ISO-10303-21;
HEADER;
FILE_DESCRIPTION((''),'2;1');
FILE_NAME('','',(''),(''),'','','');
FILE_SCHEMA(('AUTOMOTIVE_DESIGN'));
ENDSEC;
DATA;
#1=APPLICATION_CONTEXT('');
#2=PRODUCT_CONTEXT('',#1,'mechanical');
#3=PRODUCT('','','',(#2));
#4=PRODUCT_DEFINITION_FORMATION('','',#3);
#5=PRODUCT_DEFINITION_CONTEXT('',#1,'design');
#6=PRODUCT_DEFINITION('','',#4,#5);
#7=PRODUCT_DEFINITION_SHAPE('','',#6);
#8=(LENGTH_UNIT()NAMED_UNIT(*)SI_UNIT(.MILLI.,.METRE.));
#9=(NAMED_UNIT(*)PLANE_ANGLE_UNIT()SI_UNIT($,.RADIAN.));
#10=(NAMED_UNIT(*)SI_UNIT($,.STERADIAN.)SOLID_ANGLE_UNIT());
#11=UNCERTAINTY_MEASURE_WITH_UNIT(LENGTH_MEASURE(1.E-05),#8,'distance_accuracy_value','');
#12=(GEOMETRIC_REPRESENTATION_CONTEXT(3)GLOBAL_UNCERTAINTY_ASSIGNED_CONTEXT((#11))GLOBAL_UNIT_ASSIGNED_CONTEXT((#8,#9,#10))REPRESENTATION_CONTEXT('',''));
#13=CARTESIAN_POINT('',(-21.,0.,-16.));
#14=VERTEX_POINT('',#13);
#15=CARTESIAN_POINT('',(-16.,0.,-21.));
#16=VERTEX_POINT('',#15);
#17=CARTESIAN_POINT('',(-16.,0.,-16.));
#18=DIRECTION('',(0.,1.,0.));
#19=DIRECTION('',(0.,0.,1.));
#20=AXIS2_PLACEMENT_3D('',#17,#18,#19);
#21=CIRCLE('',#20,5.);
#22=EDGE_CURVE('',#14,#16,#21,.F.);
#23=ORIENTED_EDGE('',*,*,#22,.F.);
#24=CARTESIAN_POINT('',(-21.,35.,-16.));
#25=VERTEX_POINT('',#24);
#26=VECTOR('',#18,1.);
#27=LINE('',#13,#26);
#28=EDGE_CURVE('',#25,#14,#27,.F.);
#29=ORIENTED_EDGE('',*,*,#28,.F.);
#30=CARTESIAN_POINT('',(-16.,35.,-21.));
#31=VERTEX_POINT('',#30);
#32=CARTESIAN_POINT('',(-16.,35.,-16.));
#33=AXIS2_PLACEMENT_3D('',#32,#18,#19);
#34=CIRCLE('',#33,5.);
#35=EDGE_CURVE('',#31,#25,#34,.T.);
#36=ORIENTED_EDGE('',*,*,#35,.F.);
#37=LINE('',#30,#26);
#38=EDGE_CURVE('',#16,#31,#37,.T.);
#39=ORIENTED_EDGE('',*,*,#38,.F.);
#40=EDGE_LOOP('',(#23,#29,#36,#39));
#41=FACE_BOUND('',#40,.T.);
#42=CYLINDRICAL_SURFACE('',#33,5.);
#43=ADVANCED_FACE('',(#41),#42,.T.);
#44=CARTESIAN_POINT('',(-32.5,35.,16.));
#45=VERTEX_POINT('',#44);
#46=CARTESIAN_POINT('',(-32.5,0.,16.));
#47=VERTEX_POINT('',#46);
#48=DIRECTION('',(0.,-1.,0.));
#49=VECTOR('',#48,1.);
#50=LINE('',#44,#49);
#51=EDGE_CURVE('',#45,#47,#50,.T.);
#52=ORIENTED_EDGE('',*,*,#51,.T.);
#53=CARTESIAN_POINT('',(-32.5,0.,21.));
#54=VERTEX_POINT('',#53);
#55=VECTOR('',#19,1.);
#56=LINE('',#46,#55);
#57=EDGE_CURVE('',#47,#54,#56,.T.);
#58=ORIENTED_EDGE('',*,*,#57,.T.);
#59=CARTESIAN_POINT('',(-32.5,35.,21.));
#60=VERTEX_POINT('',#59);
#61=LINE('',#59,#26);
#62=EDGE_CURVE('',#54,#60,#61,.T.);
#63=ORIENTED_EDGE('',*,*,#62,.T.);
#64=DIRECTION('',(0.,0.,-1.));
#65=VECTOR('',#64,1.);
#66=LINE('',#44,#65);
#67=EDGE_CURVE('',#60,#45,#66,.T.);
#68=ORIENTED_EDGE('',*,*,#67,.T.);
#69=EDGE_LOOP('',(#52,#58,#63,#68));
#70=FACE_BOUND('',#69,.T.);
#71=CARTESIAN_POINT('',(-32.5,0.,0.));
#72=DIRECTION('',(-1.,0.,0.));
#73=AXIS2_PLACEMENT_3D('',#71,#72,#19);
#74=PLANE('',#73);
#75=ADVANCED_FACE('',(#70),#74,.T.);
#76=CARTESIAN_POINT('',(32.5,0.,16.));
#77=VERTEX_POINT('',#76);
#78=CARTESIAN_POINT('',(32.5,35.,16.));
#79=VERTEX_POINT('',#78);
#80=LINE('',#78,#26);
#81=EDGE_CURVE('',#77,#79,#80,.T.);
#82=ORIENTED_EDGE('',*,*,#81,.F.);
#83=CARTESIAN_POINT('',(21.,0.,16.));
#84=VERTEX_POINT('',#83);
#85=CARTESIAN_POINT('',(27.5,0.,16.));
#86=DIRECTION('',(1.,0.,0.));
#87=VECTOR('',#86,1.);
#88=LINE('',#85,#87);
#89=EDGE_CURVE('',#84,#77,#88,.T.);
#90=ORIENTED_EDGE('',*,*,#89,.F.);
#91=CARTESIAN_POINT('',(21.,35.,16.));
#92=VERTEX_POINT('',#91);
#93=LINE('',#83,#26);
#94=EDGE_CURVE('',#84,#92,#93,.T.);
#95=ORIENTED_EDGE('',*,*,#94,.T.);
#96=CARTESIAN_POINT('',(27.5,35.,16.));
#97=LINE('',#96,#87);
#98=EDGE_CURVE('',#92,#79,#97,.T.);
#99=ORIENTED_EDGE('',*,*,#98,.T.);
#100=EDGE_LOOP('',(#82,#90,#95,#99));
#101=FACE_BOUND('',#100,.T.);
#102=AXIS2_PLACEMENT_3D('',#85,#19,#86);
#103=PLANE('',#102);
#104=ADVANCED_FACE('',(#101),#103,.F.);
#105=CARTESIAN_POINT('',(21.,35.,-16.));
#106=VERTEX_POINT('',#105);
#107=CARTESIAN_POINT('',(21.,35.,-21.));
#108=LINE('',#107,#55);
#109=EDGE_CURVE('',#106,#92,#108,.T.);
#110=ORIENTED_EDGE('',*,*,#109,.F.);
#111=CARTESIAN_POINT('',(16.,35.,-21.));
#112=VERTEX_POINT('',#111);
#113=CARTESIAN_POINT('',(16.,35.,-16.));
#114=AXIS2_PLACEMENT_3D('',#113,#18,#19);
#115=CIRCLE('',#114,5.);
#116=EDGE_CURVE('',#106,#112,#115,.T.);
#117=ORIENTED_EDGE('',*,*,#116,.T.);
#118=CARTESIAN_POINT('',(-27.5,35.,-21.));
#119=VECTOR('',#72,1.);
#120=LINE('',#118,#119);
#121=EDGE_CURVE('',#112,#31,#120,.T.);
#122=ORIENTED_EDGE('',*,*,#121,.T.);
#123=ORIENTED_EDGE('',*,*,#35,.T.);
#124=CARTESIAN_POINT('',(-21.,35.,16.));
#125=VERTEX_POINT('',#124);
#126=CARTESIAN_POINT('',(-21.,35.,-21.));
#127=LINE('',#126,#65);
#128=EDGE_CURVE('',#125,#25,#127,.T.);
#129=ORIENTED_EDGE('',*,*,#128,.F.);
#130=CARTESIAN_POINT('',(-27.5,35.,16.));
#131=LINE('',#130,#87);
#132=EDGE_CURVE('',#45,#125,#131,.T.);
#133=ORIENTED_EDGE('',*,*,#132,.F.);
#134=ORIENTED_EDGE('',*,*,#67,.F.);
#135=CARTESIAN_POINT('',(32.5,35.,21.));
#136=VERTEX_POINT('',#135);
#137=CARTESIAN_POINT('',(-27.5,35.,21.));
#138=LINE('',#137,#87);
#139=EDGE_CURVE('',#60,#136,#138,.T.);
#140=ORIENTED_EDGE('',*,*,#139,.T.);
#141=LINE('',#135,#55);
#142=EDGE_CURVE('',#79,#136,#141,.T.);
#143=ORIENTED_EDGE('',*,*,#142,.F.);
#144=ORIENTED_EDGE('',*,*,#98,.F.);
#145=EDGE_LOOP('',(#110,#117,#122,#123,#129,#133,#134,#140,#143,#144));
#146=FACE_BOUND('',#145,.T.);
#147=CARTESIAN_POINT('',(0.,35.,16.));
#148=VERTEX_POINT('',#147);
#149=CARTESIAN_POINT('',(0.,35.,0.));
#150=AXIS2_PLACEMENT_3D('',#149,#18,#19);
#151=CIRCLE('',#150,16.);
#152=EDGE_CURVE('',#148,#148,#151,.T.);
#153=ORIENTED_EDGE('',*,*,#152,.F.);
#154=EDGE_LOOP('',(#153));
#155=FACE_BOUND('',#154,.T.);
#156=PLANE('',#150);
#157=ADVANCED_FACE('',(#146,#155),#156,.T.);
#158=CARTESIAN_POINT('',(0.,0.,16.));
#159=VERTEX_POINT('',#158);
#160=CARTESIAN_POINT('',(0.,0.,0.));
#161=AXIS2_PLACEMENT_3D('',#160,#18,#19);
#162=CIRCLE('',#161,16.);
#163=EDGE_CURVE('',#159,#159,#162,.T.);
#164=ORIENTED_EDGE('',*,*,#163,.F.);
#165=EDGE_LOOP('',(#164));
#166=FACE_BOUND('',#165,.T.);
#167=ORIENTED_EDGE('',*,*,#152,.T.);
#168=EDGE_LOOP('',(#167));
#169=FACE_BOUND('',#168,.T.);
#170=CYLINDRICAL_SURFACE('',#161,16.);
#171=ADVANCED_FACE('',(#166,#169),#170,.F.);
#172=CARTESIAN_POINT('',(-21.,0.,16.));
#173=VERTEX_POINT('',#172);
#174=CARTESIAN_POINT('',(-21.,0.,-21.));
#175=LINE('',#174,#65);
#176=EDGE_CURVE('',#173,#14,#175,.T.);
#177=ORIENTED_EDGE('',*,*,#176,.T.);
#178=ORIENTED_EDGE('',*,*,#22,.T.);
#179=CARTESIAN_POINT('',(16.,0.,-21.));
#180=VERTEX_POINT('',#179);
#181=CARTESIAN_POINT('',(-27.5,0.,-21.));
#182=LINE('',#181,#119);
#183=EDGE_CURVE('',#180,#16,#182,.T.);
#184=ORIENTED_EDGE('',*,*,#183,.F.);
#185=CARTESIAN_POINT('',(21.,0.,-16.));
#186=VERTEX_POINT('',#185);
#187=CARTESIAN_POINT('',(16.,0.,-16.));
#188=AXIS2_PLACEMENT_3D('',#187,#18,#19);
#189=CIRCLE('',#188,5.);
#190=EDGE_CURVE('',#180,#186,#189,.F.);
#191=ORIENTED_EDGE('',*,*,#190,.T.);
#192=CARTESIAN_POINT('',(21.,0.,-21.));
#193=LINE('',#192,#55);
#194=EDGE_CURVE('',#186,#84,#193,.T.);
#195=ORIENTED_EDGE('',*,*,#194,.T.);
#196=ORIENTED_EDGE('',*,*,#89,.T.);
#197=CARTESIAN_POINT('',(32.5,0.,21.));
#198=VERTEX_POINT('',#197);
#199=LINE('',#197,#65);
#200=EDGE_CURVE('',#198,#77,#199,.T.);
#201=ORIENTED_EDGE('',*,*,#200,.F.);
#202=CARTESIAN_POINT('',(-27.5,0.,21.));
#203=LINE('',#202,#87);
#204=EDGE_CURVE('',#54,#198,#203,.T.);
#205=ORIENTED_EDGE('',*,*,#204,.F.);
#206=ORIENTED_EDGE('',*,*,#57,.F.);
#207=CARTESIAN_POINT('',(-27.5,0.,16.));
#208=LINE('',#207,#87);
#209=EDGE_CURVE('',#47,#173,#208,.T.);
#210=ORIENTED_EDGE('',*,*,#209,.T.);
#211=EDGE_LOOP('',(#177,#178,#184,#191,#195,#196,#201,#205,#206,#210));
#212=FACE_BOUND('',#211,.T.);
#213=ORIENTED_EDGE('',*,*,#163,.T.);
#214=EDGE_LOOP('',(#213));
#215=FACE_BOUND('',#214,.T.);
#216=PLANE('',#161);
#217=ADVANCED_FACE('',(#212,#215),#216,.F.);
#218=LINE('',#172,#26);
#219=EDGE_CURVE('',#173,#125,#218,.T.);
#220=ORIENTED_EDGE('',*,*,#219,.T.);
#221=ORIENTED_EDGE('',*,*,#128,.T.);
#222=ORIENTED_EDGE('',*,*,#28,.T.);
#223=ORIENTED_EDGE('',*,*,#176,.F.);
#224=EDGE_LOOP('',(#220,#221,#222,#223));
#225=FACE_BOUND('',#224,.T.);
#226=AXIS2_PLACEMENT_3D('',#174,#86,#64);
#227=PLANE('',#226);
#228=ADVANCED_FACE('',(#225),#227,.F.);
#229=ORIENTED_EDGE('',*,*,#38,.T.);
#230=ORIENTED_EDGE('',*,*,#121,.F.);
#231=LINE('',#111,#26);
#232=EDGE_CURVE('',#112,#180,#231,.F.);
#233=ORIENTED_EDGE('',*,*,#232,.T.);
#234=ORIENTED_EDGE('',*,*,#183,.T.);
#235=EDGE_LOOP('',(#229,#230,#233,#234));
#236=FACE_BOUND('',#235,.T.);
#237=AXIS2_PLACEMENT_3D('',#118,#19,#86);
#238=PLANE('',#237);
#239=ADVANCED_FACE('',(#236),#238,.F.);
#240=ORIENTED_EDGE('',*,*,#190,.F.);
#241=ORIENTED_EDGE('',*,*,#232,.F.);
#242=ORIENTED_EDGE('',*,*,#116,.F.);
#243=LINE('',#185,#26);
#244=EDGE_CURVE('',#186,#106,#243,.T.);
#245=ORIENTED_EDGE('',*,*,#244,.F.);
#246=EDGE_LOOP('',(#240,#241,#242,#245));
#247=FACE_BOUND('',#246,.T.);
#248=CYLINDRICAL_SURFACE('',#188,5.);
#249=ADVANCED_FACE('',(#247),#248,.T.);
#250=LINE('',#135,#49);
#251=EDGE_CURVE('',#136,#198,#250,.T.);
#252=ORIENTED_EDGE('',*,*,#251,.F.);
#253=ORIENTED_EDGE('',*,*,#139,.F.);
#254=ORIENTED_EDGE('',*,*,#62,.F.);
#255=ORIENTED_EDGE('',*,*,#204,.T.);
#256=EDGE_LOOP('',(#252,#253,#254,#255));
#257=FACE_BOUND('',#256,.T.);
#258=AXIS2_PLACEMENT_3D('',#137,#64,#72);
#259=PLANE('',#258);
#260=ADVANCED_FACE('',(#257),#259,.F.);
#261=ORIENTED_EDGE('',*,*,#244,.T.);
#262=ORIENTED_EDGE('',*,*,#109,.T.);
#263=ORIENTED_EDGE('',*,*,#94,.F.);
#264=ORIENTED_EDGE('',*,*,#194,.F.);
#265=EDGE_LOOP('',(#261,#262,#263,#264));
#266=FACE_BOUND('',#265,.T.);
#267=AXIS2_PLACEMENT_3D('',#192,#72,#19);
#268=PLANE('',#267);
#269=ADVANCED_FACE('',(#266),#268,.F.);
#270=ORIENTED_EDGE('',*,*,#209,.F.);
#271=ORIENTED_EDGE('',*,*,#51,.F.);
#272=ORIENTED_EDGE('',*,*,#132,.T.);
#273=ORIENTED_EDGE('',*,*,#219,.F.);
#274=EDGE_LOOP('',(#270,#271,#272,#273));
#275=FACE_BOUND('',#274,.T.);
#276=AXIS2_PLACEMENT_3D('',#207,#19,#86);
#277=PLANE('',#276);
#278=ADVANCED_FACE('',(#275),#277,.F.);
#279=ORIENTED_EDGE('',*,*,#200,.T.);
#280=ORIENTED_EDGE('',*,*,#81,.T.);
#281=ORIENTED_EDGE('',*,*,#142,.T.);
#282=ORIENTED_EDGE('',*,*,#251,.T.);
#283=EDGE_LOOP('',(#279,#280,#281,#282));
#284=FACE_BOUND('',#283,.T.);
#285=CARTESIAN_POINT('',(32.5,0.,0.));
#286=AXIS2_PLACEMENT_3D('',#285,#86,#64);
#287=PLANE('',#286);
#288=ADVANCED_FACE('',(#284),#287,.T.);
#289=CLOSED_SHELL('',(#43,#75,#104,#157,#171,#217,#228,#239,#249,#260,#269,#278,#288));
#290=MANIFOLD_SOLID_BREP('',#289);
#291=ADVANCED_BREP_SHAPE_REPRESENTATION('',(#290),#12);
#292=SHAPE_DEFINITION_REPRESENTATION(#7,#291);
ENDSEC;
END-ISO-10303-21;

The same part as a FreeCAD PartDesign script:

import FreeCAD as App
import Part
import Sketcher
from FreeCAD import Vector
Q = App.Units.Quantity


def edges_at(feature, points):
    """Names of the edges that pass closest to the given points."""
    edges = feature.Shape.Edges
    near = lambda p: min(range(len(edges)), key=lambda i: edges[i].distToShape(Part.Vertex(*p))[0])
    return sorted({f"Edge{near(p) + 1}" for p in points})


def add_polygon(sketch, points):
    """Adds a closed chain of lines whose ends are joined by coincident constraints."""
    first, n = sketch.GeometryCount, len(points)
    for a, b in zip(points, points[1:] + points[:1]):
        sketch.addGeometry(Part.LineSegment(App.Vector(*a, 0), App.Vector(*b, 0)), False)
    for i in range(n):
        sketch.addConstraint(Sketcher.Constraint("Coincident", first + i, 2, first + (i + 1) % n, 1))

doc = App.newDocument("Part")
params = doc.addObject("Spreadsheet::Sheet", "Params")
for row, (alias, value) in enumerate([
    ("sketch1_width", "55 mm"),
    ("sketch1_height", "42 mm"),
    ("pad1_length", "35 mm"),
    ("sketch2_diameter", "32 mm"),
    ("pocket1_length", "35 mm"),
    ("sketch3_height", "37 mm"),
    ("sketch3_width", "6.5 mm"),
    ("pocket2_length", "35 mm"),
    ("fillet_radius", "5 mm"),
    ("sketch4_width", "35 mm"),
    ("sketch4_height", "5 mm"),
    ("pad2_length", "5 mm"),
    ("sketch5_width", "35 mm"),
    ("sketch5_height", "5 mm"),
    ("pad3_length", "5 mm"),
], start=1):
    params.set(f"A{row}", alias)
    params.set(f"B{row}", "=" + value)
    params.setAlias(f"B{row}", alias)

body = doc.addObject("PartDesign::Body", "Body")

# Sketch on XZ plane
sketch1 = body.newObject("Sketcher::SketchObject", "Sketch")
sketch1.AttachmentSupport = (doc.getObject("XZ_Plane"), [""])
sketch1.MapMode = "FlatFace"
add_polygon(sketch1, [(-28, -21), (-28, 21), (28, 21), (28, -21)])  # lines 0-3
sketch1.addConstraint(Sketcher.Constraint("Vertical", 0))
sketch1.addConstraint(Sketcher.Constraint("Horizontal", 1))
sketch1.addConstraint(Sketcher.Constraint("Vertical", 2))
sketch1.addConstraint(Sketcher.Constraint("Horizontal", 3))
sketch1.addConstraint(Sketcher.Constraint("Symmetric", 0, 2, 2, 2, -1, 1))
sketch1.addConstraint(Sketcher.Constraint("DistanceX", 1, 1, 1, 2, Q("55 mm")))
sketch1.addConstraint(Sketcher.Constraint("DistanceY", 0, 1, 0, 2, Q("42 mm")))
sketch1.setExpression("Constraints[9]", "Params.sketch1_width")
sketch1.setExpression("Constraints[10]", "Params.sketch1_height")
pad1 = body.newObject("PartDesign::Pad", "Pad")
pad1.Profile = sketch1
pad1.setExpression("Length", "Params.pad1_length")
pad1.Reversed = True

# Sketch on XZ plane
sketch2 = body.newObject("Sketcher::SketchObject", "Sketch001")
sketch2.AttachmentSupport = (doc.getObject("XZ_Plane"), [""])
sketch2.MapMode = "FlatFace"
sketch2.AttachmentOffset = App.Placement(Vector(0, 0, -35), App.Rotation())
sketch2.addGeometry(Part.Circle(Vector(0, 0, 0), Vector(0, 0, 1), 16), False)
sketch2.addConstraint(Sketcher.Constraint("Coincident", 0, 3, -1, 1))
sketch2.addConstraint(Sketcher.Constraint("Diameter", 0, Q("32 mm")))
sketch2.setExpression("Constraints[1]", "Params.sketch2_diameter")
pocket1 = body.newObject("PartDesign::Pocket", "Pocket")
pocket1.Profile = sketch2
pocket1.setExpression("Length", "Params.pocket1_length")
pocket1.Reversed = True

# Sketch on XZ plane
sketch3 = body.newObject("Sketcher::SketchObject", "Sketch002")
sketch3.AttachmentSupport = (doc.getObject("XZ_Plane"), [""])
sketch3.MapMode = "FlatFace"
sketch3.AttachmentOffset = App.Placement(Vector(0, 0, -35), App.Rotation())
add_polygon(sketch3, [(-28, -21), (-28, 16), (-21, 16), (-21, -21)])  # lines 0-3
add_polygon(sketch3, [(21, -21), (21, 16), (28, 16), (28, -21)])  # lines 4-7
sketch3.addConstraint(Sketcher.Constraint("Vertical", 0))
sketch3.addConstraint(Sketcher.Constraint("Horizontal", 1))
sketch3.addConstraint(Sketcher.Constraint("Vertical", 2))
sketch3.addConstraint(Sketcher.Constraint("Horizontal", 3))
sketch3.addConstraint(Sketcher.Constraint("Vertical", 4))
sketch3.addConstraint(Sketcher.Constraint("Horizontal", 5))
sketch3.addConstraint(Sketcher.Constraint("Vertical", 6))
sketch3.addConstraint(Sketcher.Constraint("Horizontal", 7))
sketch3.addConstraint(Sketcher.Constraint("Symmetric", 1, 2, 4, 2, -2))
sketch3.addConstraint(Sketcher.Constraint("Symmetric", 3, 2, 6, 2, -2))
sketch3.addConstraint(Sketcher.Constraint("DistanceY", 0, 1, 0, 2, Q("37 mm")))
sketch3.addConstraint(Sketcher.Constraint("DistanceX", 1, 1, 1, 2, Q("6.5 mm")))
sketch3.addConstraint(Sketcher.Constraint("DistanceY", -1, 1, 0, 2, Q("16 mm")))
sketch3.addConstraint(Sketcher.Constraint("DistanceX", 1, 2, -1, 1, Q("21 mm")))
sketch3.setExpression("Constraints[18]", "Params.sketch3_height")
sketch3.setExpression("Constraints[19]", "Params.sketch3_width")
pocket2 = body.newObject("PartDesign::Pocket", "Pocket001")
pocket2.Profile = sketch3
pocket2.setExpression("Length", "Params.pocket2_length")
pocket2.Reversed = True
doc.recompute()

fillet = body.newObject("PartDesign::Fillet", "Fillet")
fillet.Base = (pocket2, edges_at(pocket2, [(-21, 17.5, -21), (21, 17.5, -21)]))
fillet.setExpression("Radius", "Params.fillet_radius")

# Sketch on YZ plane
sketch4 = body.newObject("Sketcher::SketchObject", "Sketch003")
sketch4.AttachmentSupport = (doc.getObject("YZ_Plane"), [""])
sketch4.MapMode = "FlatFace"
sketch4.AttachmentOffset = App.Placement(Vector(0, 0, 27.5), App.Rotation())
add_polygon(sketch4, [(35, 21), (0, 21), (0, 16), (35, 16)])  # lines 0-3
sketch4.addConstraint(Sketcher.Constraint("Horizontal", 0))
sketch4.addConstraint(Sketcher.Constraint("Vertical", 1))
sketch4.addConstraint(Sketcher.Constraint("Horizontal", 2))
sketch4.addConstraint(Sketcher.Constraint("Vertical", 3))
sketch4.addConstraint(Sketcher.Constraint("PointOnObject", 0, 2, -2))
sketch4.addConstraint(Sketcher.Constraint("DistanceX", 0, 2, 0, 1, Q("35 mm")))
sketch4.addConstraint(Sketcher.Constraint("DistanceY", 1, 2, 1, 1, Q("5 mm")))
sketch4.addConstraint(Sketcher.Constraint("DistanceY", -1, 1, 0, 2, Q("21 mm")))
sketch4.setExpression("Constraints[9]", "Params.sketch4_width")
sketch4.setExpression("Constraints[10]", "Params.sketch4_height")
pad2 = body.newObject("PartDesign::Pad", "Pad001")
pad2.Profile = sketch4
pad2.setExpression("Length", "Params.pad2_length")

# Sketch on YZ plane
sketch5 = body.newObject("Sketcher::SketchObject", "Sketch004")
sketch5.AttachmentSupport = (doc.getObject("YZ_Plane"), [""])
sketch5.MapMode = "FlatFace"
sketch5.AttachmentOffset = App.Placement(Vector(0, 0, -27.5), App.Rotation())
add_polygon(sketch5, [(35, 16), (0, 16), (0, 21), (35, 21)])  # lines 0-3
sketch5.addConstraint(Sketcher.Constraint("Horizontal", 0))
sketch5.addConstraint(Sketcher.Constraint("Vertical", 1))
sketch5.addConstraint(Sketcher.Constraint("Horizontal", 2))
sketch5.addConstraint(Sketcher.Constraint("Vertical", 3))
sketch5.addConstraint(Sketcher.Constraint("PointOnObject", 0, 2, -2))
sketch5.addConstraint(Sketcher.Constraint("DistanceX", 0, 2, 0, 1, Q("35 mm")))
sketch5.addConstraint(Sketcher.Constraint("DistanceY", 1, 1, 1, 2, Q("5 mm")))
sketch5.addConstraint(Sketcher.Constraint("DistanceY", -1, 1, 0, 2, Q("16 mm")))
sketch5.setExpression("Constraints[9]", "Params.sketch5_width")
sketch5.setExpression("Constraints[10]", "Params.sketch5_height")
pad3 = body.newObject("PartDesign::Pad", "Pad002")
pad3.Profile = sketch5
pad3.setExpression("Length", "Params.pad3_length")
pad3.Reversed = True

doc.recompute()
